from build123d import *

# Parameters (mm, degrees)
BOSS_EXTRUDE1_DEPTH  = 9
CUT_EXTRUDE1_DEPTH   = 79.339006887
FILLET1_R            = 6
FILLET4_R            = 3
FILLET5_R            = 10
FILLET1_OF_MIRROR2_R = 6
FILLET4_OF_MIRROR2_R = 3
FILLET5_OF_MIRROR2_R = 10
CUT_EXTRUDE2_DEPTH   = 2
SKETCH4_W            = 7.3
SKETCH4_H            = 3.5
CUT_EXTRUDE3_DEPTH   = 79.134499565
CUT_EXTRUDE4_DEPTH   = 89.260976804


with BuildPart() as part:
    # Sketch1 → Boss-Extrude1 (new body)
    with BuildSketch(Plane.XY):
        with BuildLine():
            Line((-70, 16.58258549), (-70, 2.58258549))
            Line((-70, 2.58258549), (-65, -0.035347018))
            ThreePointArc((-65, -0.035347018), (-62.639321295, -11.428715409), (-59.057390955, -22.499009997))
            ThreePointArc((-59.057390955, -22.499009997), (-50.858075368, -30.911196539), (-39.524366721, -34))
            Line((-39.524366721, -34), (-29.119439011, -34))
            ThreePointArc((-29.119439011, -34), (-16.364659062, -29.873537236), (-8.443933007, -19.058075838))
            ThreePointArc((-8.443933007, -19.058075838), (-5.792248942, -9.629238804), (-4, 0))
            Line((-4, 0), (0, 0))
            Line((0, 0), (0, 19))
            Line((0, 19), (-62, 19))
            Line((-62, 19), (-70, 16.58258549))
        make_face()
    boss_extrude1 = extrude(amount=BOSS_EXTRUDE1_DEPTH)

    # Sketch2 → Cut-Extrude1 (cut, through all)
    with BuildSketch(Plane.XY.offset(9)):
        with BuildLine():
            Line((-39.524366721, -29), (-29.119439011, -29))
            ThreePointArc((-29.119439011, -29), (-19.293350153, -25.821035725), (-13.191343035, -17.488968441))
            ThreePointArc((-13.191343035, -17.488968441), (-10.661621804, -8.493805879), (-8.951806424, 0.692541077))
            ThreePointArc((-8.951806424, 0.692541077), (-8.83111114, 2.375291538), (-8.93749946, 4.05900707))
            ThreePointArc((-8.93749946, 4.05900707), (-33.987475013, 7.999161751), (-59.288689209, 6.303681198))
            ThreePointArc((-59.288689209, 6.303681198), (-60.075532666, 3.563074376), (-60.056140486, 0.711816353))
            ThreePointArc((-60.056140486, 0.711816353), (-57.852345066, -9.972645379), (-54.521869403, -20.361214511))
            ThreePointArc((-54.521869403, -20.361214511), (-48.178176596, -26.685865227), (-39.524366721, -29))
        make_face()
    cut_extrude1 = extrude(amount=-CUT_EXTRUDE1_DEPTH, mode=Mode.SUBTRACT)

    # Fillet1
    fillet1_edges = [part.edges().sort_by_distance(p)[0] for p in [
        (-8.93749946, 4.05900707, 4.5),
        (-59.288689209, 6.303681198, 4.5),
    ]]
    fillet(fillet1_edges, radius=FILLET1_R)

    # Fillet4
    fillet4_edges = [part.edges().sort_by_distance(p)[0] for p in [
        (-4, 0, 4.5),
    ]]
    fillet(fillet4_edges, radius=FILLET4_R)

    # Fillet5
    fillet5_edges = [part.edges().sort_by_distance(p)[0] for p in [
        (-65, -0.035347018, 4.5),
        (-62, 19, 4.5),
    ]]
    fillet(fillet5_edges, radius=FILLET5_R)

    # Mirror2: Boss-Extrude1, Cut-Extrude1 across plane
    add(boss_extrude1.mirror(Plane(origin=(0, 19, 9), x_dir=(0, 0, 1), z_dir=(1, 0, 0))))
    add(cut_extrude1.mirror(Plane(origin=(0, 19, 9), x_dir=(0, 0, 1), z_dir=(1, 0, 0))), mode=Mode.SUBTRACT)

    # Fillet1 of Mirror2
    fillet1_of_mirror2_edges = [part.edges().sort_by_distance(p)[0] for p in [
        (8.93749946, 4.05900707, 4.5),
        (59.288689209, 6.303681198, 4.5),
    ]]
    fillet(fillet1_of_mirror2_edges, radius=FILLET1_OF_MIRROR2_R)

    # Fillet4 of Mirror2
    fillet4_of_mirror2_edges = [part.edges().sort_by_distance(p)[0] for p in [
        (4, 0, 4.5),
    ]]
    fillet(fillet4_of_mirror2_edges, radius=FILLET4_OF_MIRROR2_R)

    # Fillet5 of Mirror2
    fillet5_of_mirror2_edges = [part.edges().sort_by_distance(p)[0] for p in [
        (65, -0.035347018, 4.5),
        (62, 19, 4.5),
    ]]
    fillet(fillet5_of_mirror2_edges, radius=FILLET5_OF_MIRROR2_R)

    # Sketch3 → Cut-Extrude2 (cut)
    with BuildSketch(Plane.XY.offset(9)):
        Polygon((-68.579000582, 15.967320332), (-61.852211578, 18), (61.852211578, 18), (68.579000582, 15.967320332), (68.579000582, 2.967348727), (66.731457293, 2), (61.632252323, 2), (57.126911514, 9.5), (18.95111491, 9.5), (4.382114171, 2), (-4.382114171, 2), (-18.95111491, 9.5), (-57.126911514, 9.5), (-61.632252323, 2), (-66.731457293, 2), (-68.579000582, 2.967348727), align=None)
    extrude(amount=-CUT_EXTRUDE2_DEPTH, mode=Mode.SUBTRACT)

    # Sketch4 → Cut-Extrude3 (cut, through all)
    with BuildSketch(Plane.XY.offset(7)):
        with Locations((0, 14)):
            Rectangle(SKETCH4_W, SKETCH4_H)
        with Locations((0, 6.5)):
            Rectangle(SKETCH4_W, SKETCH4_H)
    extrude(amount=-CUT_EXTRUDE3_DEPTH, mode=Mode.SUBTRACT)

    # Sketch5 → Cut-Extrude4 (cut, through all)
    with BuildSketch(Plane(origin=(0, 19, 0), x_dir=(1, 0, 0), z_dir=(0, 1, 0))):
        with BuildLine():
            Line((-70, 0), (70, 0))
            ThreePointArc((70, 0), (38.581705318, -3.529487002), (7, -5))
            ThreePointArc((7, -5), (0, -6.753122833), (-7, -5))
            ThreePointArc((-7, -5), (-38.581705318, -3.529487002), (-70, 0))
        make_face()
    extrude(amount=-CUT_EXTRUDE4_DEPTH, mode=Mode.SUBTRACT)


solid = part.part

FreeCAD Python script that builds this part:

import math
import FreeCAD as App
import Part
import Sketcher
Q = App.Units.Quantity


def edges_at(feature, points):
    """Names of the edges that pass closest to the given points."""
    edges = feature.Shape.Edges
    near = lambda p: min(range(len(edges)), key=lambda i: edges[i].distToShape(Part.Vertex(*p))[0])
    return sorted({f"Edge{near(p) + 1}" for p in points})

doc = App.newDocument("Part")
body = doc.addObject("PartDesign::Body", "Body")

# Sketch on XY plane
sketch1 = doc.addObject("Sketcher::SketchObject", "Sketch")
body.addObject(sketch1)
sketch1.AttachmentSupport = (doc.XY_Plane, [""])
sketch1.MapMode = "FlatFace"
sketch1.addGeometry(Part.LineSegment(App.Vector(-70, 16.6, 0), App.Vector(-70, 2.6, 0)), False)
sketch1.addGeometry(Part.LineSegment(App.Vector(-70, 2.6, 0), App.Vector(-65, 0, 0)), False)
sketch1.addGeometry(Part.ArcOfCircle(Part.Circle(App.Vector(41, 16, 0), App.Vector(0, 0, 1), 107.2), math.radians(-171.41), math.radians(-158.96)), False)
sketch1.addGeometry(Part.ArcOfCircle(Part.Circle(App.Vector(-39.5, -11.7, 0), App.Vector(0, 0, 1), 22.3), math.radians(-151), math.radians(-90)), False)
sketch1.addGeometry(Part.LineSegment(App.Vector(-39.5, -34, 0), App.Vector(-29.1, -34, 0)), False)
sketch1.addGeometry(Part.ArcOfCircle(Part.Circle(App.Vector(-29.1, -12.2, 0), App.Vector(0, 0, 1), 21.8), math.radians(-90), math.radians(-18)), False)
sketch1.addGeometry(Part.ArcOfCircle(Part.Circle(App.Vector(-111.7, 15.1, 0), App.Vector(0, 0, 1), 108.7), math.radians(-18.29), math.radians(-7.96)), False)
sketch1.addGeometry(Part.LineSegment(App.Vector(-4, 0, 0), App.Vector(0, 0, 0)), False)
sketch1.addGeometry(Part.LineSegment(App.Vector(0, 0, 0), App.Vector(0, 19, 0)), False)
sketch1.addGeometry(Part.LineSegment(App.Vector(0, 19, 0), App.Vector(-62, 19, 0)), False)
sketch1.addGeometry(Part.LineSegment(App.Vector(-62, 19, 0), App.Vector(-70, 16.6, 0)), False)
sketch1.addConstraint(Sketcher.Constraint("Coincident", 0, 2, 1, 1))
sketch1.addConstraint(Sketcher.Constraint("Coincident", 1, 2, 2, 1))
sketch1.addConstraint(Sketcher.Constraint("Coincident", 2, 2, 3, 1))
sketch1.addConstraint(Sketcher.Constraint("Tangent", 3, 2, 4, 1))
sketch1.addConstraint(Sketcher.Constraint("Tangent", 4, 2, 5, 1))
sketch1.addConstraint(Sketcher.Constraint("Tangent", 5, 2, 6, 1))
sketch1.addConstraint(Sketcher.Constraint("Coincident", 6, 2, 7, 1))
sketch1.addConstraint(Sketcher.Constraint("Coincident", 7, 2, 8, 1))
sketch1.addConstraint(Sketcher.Constraint("Coincident", 8, 2, 9, 1))
sketch1.addConstraint(Sketcher.Constraint("Coincident", 9, 2, 10, 1))
sketch1.addConstraint(Sketcher.Constraint("Coincident", 10, 2, 0, 1))
sketch1.addConstraint(Sketcher.Constraint("Vertical", 0))
sketch1.addConstraint(Sketcher.Constraint("Horizontal", 4))
sketch1.addConstraint(Sketcher.Constraint("Horizontal", 7))
sketch1.addConstraint(Sketcher.Constraint("Vertical", 8))
sketch1.addConstraint(Sketcher.Constraint("Horizontal", 9))
sketch1.addConstraint(Sketcher.Constraint("Coincident", 7, 2, -1, 1))
sketch1.addConstraint(Sketcher.Constraint("DistanceX", 7, 1, 7, 2, Q("4 mm")))
sketch1.addConstraint(Sketcher.Constraint("DistanceX", 9, 2, 9, 1, Q("62 mm")))
sketch1.addConstraint(Sketcher.Constraint("DistanceY", 0, 2, 0, 1, Q("14 mm")))
sketch1.addConstraint(Sketcher.Constraint("DistanceY", 8, 1, 8, 2, Q("19 mm")))
sketch1.addConstraint(Sketcher.Constraint("DistanceX", 0, 2, -1, 1, Q("70 mm")))
sketch1.addConstraint(Sketcher.Constraint("DistanceX", 1, 2, -1, 1, Q("65 mm")))
sketch1.addConstraint(Sketcher.Constraint("DistanceY", 3, 2, -1, 1, Q("34 mm")))
sketch1.addConstraint(Sketcher.Constraint("Radius", 2, Q("107.168259 mm")))
sketch1.addConstraint(Sketcher.Constraint("Radius", 3, Q("22.337721 mm")))
sketch1.addConstraint(Sketcher.Constraint("Radius", 5, Q("21.775564 mm")))
sketch1.addConstraint(Sketcher.Constraint("Radius", 6, Q("108.708693 mm")))
sketch1.addConstraint(Sketcher.Constraint("DistanceX", 4, 1, 4, 2, Q("10.404928 mm")))
sketch1.addConstraint(Sketcher.Constraint("DistanceX", 5, 3, -1, 1, Q("29.119439 mm")))
sketch1.addConstraint(Sketcher.Constraint("DistanceX", 2, 2, -1, 1, Q("59.057391 mm")))
sketch1.addConstraint(Sketcher.Constraint("DistanceX", 3, 3, 2, 3, Q("80.48933 mm")))
sketch1.addConstraint(Sketcher.Constraint("DistanceY", 5, 3, 0, 2, Q("14.807022 mm")))
pad1 = doc.addObject("PartDesign::Pad", "Pad")
body.addObject(pad1)
pad1.Profile = sketch1
pad1.Length = 9

# Sketch on XY plane
sketch2 = doc.addObject("Sketcher::SketchObject", "Sketch001")
body.addObject(sketch2)
sketch2.AttachmentSupport = (doc.XY_Plane, [""])
sketch2.MapMode = "FlatFace"
sketch2.AttachmentOffset = App.Placement(App.Vector(0, 0, 9), App.Rotation())
sketch2.addGeometry(Part.LineSegment(App.Vector(-39.524367, -29, 0), App.Vector(-29.119439, -29, 0)), False)
sketch2.addGeometry(Part.ArcOfCircle(Part.Circle(App.Vector(-29.119439, -12.224436, 0), App.Vector(0, 0, 1), 16.775564), math.radians(-90), math.radians(-18.289682)), False)
sketch2.addGeometry(Part.ArcOfCircle(Part.Circle(App.Vector(-111.660881, 15.057047, 0), App.Vector(0, 0, 1), 103.708693), math.radians(-18.289682), math.radians(-7.961532)), False)
sketch2.addGeometry(Part.ArcOfCircle(Part.Circle(App.Vector(-21.364667, 2.428557, 0), App.Vector(0, 0, 1), 12.533669), math.radians(-7.961532), math.radians(7.474539)), False)
sketch2.addGeometry(Part.ArcOfCircle(Part.Circle(App.Vector(-39.064006, -105.874545, 0), App.Vector(0, 0, 1), 113.986807), math.radians(74.674745), math.radians(100.220102)), False)
sketch2.addGeometry(Part.ArcOfCircle(Part.Circle(App.Vector(-50.178002, 2.204695, 0), App.Vector(0, 0, 1), 9.990311), math.radians(155.776561), math.radians(188.594051)), False)
sketch2.addGeometry(Part.ArcOfCircle(Part.Circle(App.Vector(40.964964, 15.979093, 0), App.Vector(0, 0, 1), 102.168259), math.radians(-171.405949), math.radians(-159.164214)), False)
sketch2.addGeometry(Part.ArcOfCircle(Part.Circle(App.Vector(-39.524367, -11.662279, 0), App.Vector(0, 0, 1), 17.337721), math.radians(-149.88517), math.radians(-90)), False)
sketch2.addConstraint(Sketcher.Constraint("Coincident", 0, 2, 1, 1))
sketch2.addConstraint(Sketcher.Constraint("Coincident", 1, 2, 2, 1))
sketch2.addConstraint(Sketcher.Constraint("Coincident", 2, 2, 3, 1))
sketch2.addConstraint(Sketcher.Constraint("Coincident", 3, 2, 4, 1))
sketch2.addConstraint(Sketcher.Constraint("Coincident", 4, 2, 5, 1))
sketch2.addConstraint(Sketcher.Constraint("Coincident", 5, 2, 6, 1))
sketch2.addConstraint(Sketcher.Constraint("Coincident", 6, 2, 7, 1))
sketch2.addConstraint(Sketcher.Constraint("Coincident", 7, 2, 0, 1))
sketch2.addConstraint(Sketcher.Constraint("Horizontal", 0))
sketch2.addConstraint(Sketcher.Constraint("DistanceY", 0, 2, -1, 1, Q("29 mm")))
sketch2.addConstraint(Sketcher.Constraint("Radius", 3, Q("12.533669 mm")))
sketch2.addConstraint(Sketcher.Constraint("Radius", 5, Q("9.990311 mm")))
sketch2.addConstraint(Sketcher.Constraint("Radius", 6, Q("102.168259 mm")))
sketch2.addConstraint(Sketcher.Constraint("Radius", 7, Q("17.337721 mm")))
sketch2.addConstraint(Sketcher.Constraint("DistanceX", 5, 3, -1, 1, Q("50.178002 mm")))
sketch2.addConstraint(Sketcher.Constraint("Radius", 1, Q("16.775564 mm")))
sketch2.addConstraint(Sketcher.Constraint("Radius", 2, Q("103.708693 mm")))
sketch2.addConstraint(Sketcher.Constraint("Radius", 4, Q("113.986807 mm")))
sketch2.addConstraint(Sketcher.Constraint("DistanceX", 3, 2, -1, 1, Q("8.937499 mm")))
sketch2.addConstraint(Sketcher.Constraint("DistanceX", 7, 3, 3, 3, Q("18.1597 mm")))
sketch2.addConstraint(Sketcher.Constraint("DistanceX", 5, 2, 1, 3, Q("30.936701 mm")))
sketch2.addConstraint(Sketcher.Constraint("DistanceX", 0, 1, 0, 2, Q("10.404928 mm")))
sketch2.addConstraint(Sketcher.Constraint("DistanceX", 1, 3, -1, 1, Q("29.119439 mm")))
sketch2.addConstraint(Sketcher.Constraint("DistanceX", 2, 3, -1, 1, Q("111.660881 mm")))
sketch2.addConstraint(Sketcher.Constraint("DistanceX", 0, 2, -1, 1, Q("29.119439 mm")))
sketch2.addConstraint(Sketcher.Constraint("DistanceY", 1, 2, -1, 1, Q("17.488968 mm")))
sketch2.addConstraint(Sketcher.Constraint("DistanceY", -1, 1, 2, 2, Q("0.692541 mm")))
sketch2.addConstraint(Sketcher.Constraint("DistanceX", 4, 2, -1, 1, Q("59.288689 mm")))
sketch2.addConstraint(Sketcher.Constraint("DistanceY", -1, 1, 4, 2, Q("6.303681 mm")))
sketch2.addConstraint(Sketcher.Constraint("DistanceX", 6, 2, -1, 1, Q("54.521869 mm")))
sketch2.addConstraint(Sketcher.Constraint("DistanceX", 1, 3, 3, 3, Q("7.754772 mm")))
pocket1 = doc.addObject("PartDesign::Pocket", "Pocket")
body.addObject(pocket1)
pocket1.Profile = sketch2
pocket1.Type = "ThroughAll"
doc.recompute()

fillet = doc.addObject("PartDesign::Fillet", "Fillet")
body.addObject(fillet)
fillet.Base = (pocket1, edges_at(pocket1, [(-8.937, 4.059, 4.5), (-59.289, 6.304, 4.5)]))
fillet.Radius = 6
doc.recompute()

fillet2 = doc.addObject("PartDesign::Fillet", "Fillet001")
body.addObject(fillet2)
fillet2.Base = (fillet, edges_at(fillet, [(-4, 0, 4.5)]))
fillet2.Radius = 3
doc.recompute()

fillet3 = doc.addObject("PartDesign::Fillet", "Fillet002")
body.addObject(fillet3)
fillet3.Base = (fillet2, edges_at(fillet2, [(-65, -0.035, 4.5), (-62, 19, 4.5)]))
fillet3.Radius = 10
doc.recompute()

mirrored = doc.addObject("PartDesign::Mirrored", "Mirrored")
body.addObject(mirrored)
mirrored.Originals = [pad1, pocket1]
mirrored.MirrorPlane = (doc.YZ_Plane, [""])
body.Tip = mirrored
doc.recompute()

fillet4 = doc.addObject("PartDesign::Fillet", "Fillet003")
body.addObject(fillet4)
fillet4.Base = (mirrored, edges_at(mirrored, [(8.937, 4.059, 4.5), (59.289, 6.304, 4.5)]))
fillet4.Radius = 6
doc.recompute()

fillet5 = doc.addObject("PartDesign::Fillet", "Fillet004")
body.addObject(fillet5)
fillet5.Base = (fillet4, edges_at(fillet4, [(4, 0, 4.5)]))
fillet5.Radius = 3
doc.recompute()

fillet6 = doc.addObject("PartDesign::Fillet", "Fillet005")
body.addObject(fillet6)
fillet6.Base = (fillet5, edges_at(fillet5, [(65, -0.035, 4.5), (62, 19, 4.5)]))
fillet6.Radius = 10

# Sketch on XY plane
sketch3 = doc.addObject("Sketcher::SketchObject", "Sketch002")
body.addObject(sketch3)
sketch3.AttachmentSupport = (doc.XY_Plane, [""])
sketch3.MapMode = "FlatFace"
sketch3.AttachmentOffset = App.Placement(App.Vector(0, 0, 9), App.Rotation())
sketch3.addGeometry(Part.LineSegment(App.Vector(-61.9, 18, 0), App.Vector(-68.6, 16, 0)), False)
sketch3.addGeometry(Part.LineSegment(App.Vector(-68.6, 16, 0), App.Vector(-68.6, 3, 0)), False)
sketch3.addGeometry(Part.LineSegment(App.Vector(-68.6, 3, 0), App.Vector(-66.7, 2, 0)), False)
sketch3.addGeometry(Part.LineSegment(App.Vector(-66.7, 2, 0), App.Vector(-61.6, 2, 0)), False)
sketch3.addGeometry(Part.LineSegment(App.Vector(-61.6, 2, 0), App.Vector(-57.1, 9.5, 0)), False)
sketch3.addGeometry(Part.LineSegment(App.Vector(-57.1, 9.5, 0), App.Vector(-19, 9.5, 0)), False)
sketch3.addGeometry(Part.LineSegment(App.Vector(-19, 9.5, 0), App.Vector(-4.4, 2, 0)), False)
sketch3.addGeometry(Part.LineSegment(App.Vector(-4.4, 2, 0), App.Vector(4.4, 2, 0)), False)
sketch3.addGeometry(Part.LineSegment(App.Vector(4.4, 2, 0), App.Vector(19, 9.5, 0)), False)
sketch3.addGeometry(Part.LineSegment(App.Vector(19, 9.5, 0), App.Vector(57.1, 9.5, 0)), False)
sketch3.addGeometry(Part.LineSegment(App.Vector(57.1, 9.5, 0), App.Vector(61.6, 2, 0)), False)
sketch3.addGeometry(Part.LineSegment(App.Vector(61.6, 2, 0), App.Vector(66.7, 2, 0)), False)
sketch3.addGeometry(Part.LineSegment(App.Vector(66.7, 2, 0), App.Vector(68.6, 3, 0)), False)
sketch3.addGeometry(Part.LineSegment(App.Vector(68.6, 3, 0), App.Vector(68.6, 16, 0)), False)
sketch3.addGeometry(Part.LineSegment(App.Vector(68.6, 16, 0), App.Vector(61.9, 18, 0)), False)
sketch3.addGeometry(Part.LineSegment(App.Vector(61.9, 18, 0), App.Vector(-61.9, 18, 0)), False)
sketch3.addConstraint(Sketcher.Constraint("Coincident", 0, 2, 1, 1))
sketch3.addConstraint(Sketcher.Constraint("Coincident", 1, 2, 2, 1))
sketch3.addConstraint(Sketcher.Constraint("Coincident", 2, 2, 3, 1))
sketch3.addConstraint(Sketcher.Constraint("Coincident", 3, 2, 4, 1))
sketch3.addConstraint(Sketcher.Constraint("Coincident", 4, 2, 5, 1))
sketch3.addConstraint(Sketcher.Constraint("Coincident", 5, 2, 6, 1))
sketch3.addConstraint(Sketcher.Constraint("Coincident", 6, 2, 7, 1))
sketch3.addConstraint(Sketcher.Constraint("Coincident", 7, 2, 8, 1))
sketch3.addConstraint(Sketcher.Constraint("Coincident", 8, 2, 9, 1))
sketch3.addConstraint(Sketcher.Constraint("Coincident", 9, 2, 10, 1))
sketch3.addConstraint(Sketcher.Constraint("Coincident", 10, 2, 11, 1))
sketch3.addConstraint(Sketcher.Constraint("Coincident", 11, 2, 12, 1))
sketch3.addConstraint(Sketcher.Constraint("Coincident", 12, 2, 13, 1))
sketch3.addConstraint(Sketcher.Constraint("Coincident", 13, 2, 14, 1))
sketch3.addConstraint(Sketcher.Constraint("Coincident", 14, 2, 15, 1))
sketch3.addConstraint(Sketcher.Constraint("Coincident", 15, 2, 0, 1))
sketch3.addConstraint(Sketcher.Constraint("Vertical", 1))
sketch3.addConstraint(Sketcher.Constraint("Horizontal", 3))
sketch3.addConstraint(Sketcher.Constraint("Horizontal", 5))
sketch3.addConstraint(Sketcher.Constraint("Horizontal", 7))
sketch3.addConstraint(Sketcher.Constraint("Horizontal", 9))
sketch3.addConstraint(Sketcher.Constraint("Horizontal", 11))
sketch3.addConstraint(Sketcher.Constraint("Vertical", 13))
sketch3.addConstraint(Sketcher.Constraint("Horizontal", 15))
sketch3.addConstraint(Sketcher.Constraint("Symmetric", 5, 2, 8, 2, -2))
sketch3.addConstraint(Sketcher.Constraint("Symmetric", 3, 2, 10, 2, -2))
sketch3.addConstraint(Sketcher.Constraint("Symmetric", 1, 2, 12, 2, -2))
sketch3.addConstraint(Sketcher.Constraint("Horizontal", 3, 2, 6, 2))
sketch3.addConstraint(Sketcher.Constraint("Horizontal", 0, 2, 13, 2))
sketch3.addConstraint(Sketcher.Constraint("Equal", 5, 9))
sketch3.addConstraint(Sketcher.Constraint("Equal", 3, 11))
sketch3.addConstraint(Sketcher.Constraint("Equal", 6, 8))
sketch3.addConstraint(Sketcher.Constraint("Equal", 0, 14))
sketch3.addConstraint(Sketcher.Constraint("DistanceY", -1, 1, 2, 2, Q("2 mm")))
sketch3.addConstraint(Sketcher.Constraint("DistanceY", -1, 1, 14, 2, Q("18 mm")))
sketch3.addConstraint(Sketcher.Constraint("DistanceY", -1, 1, 4, 2, Q("9.5 mm")))
sketch3.addConstraint(Sketcher.Constraint("DistanceX", 0, 2, -1, 1, Q("68.579001 mm")))
sketch3.addConstraint(Sketcher.Constraint("DistanceX", 5, 2, 6, 2, Q("14.569001 mm")))
sketch3.addConstraint(Sketcher.Constraint("DistanceX", 7, 1, 7, 2, Q("8.764228 mm")))
sketch3.addConstraint(Sketcher.Constraint("DistanceY", 1, 2, 1, 1, Q("12.999972 mm")))
sketch3.addConstraint(Sketcher.Constraint("DistanceX", 9, 2, 14, 2, Q("4.7253 mm")))
sketch3.addConstraint(Sketcher.Constraint("Distance", 2, Q("2.085469 mm")))
sketch3.addConstraint(Sketcher.Constraint("DistanceX", 3, 1, 3, 2, Q("5.099205 mm")))
sketch3.addConstraint(Sketcher.Constraint("DistanceX", 5, 1, 5, 2, Q("38.175797 mm")))
sketch3.addConstraint(Sketcher.Constraint("DistanceY", -1, 1, 0, 2, Q("15.96732 mm")))
pocket2 = doc.addObject("PartDesign::Pocket", "Pocket001")
body.addObject(pocket2)
pocket2.Profile = sketch3
pocket2.Length = 2

# Sketch on XY plane
sketch4 = doc.addObject("Sketcher::SketchObject", "Sketch003")
body.addObject(sketch4)
sketch4.AttachmentSupport = (doc.XY_Plane, [""])
sketch4.MapMode = "FlatFace"
sketch4.AttachmentOffset = App.Placement(App.Vector(0, 0, 7), App.Rotation())
sketch4.addGeometry(Part.LineSegment(App.Vector(-3.6, 15.8, 0), App.Vector(-3.6, 12.2, 0)), False)
sketch4.addGeometry(Part.LineSegment(App.Vector(-3.6, 12.2, 0), App.Vector(3.6, 12.2, 0)), False)
sketch4.addGeometry(Part.LineSegment(App.Vector(3.6, 12.2, 0), App.Vector(3.6, 15.8, 0)), False)
sketch4.addGeometry(Part.LineSegment(App.Vector(3.6, 15.8, 0), App.Vector(-3.6, 15.8, 0)), False)
sketch4.addGeometry(Part.LineSegment(App.Vector(-3.6, 8.2, 0), App.Vector(-3.6, 4.8, 0)), False)
sketch4.addGeometry(Part.LineSegment(App.Vector(-3.6, 4.8, 0), App.Vector(3.6, 4.8, 0)), False)
sketch4.addGeometry(Part.LineSegment(App.Vector(3.6, 4.8, 0), App.Vector(3.6, 8.2, 0)), False)
sketch4.addGeometry(Part.LineSegment(App.Vector(3.6, 8.2, 0), App.Vector(-3.6, 8.2, 0)), False)
sketch4.addConstraint(Sketcher.Constraint("Coincident", 0, 2, 1, 1))
sketch4.addConstraint(Sketcher.Constraint("Coincident", 1, 2, 2, 1))
sketch4.addConstraint(Sketcher.Constraint("Coincident", 2, 2, 3, 1))
sketch4.addConstraint(Sketcher.Constraint("Coincident", 3, 2, 0, 1))
sketch4.addConstraint(Sketcher.Constraint("Coincident", 4, 2, 5, 1))
sketch4.addConstraint(Sketcher.Constraint("Coincident", 5, 2, 6, 1))
sketch4.addConstraint(Sketcher.Constraint("Coincident", 6, 2, 7, 1))
sketch4.addConstraint(Sketcher.Constraint("Coincident", 7, 2, 4, 1))
sketch4.addConstraint(Sketcher.Constraint("Vertical", 0))
sketch4.addConstraint(Sketcher.Constraint("Horizontal", 1))
sketch4.addConstraint(Sketcher.Constraint("Vertical", 2))
sketch4.addConstraint(Sketcher.Constraint("Horizontal", 3))
sketch4.addConstraint(Sketcher.Constraint("Vertical", 4))
sketch4.addConstraint(Sketcher.Constraint("Horizontal", 5))
sketch4.addConstraint(Sketcher.Constraint("Vertical", 6))
sketch4.addConstraint(Sketcher.Constraint("Horizontal", 7))
sketch4.addConstraint(Sketcher.Constraint("Vertical", 3, 2, 4, 2))
sketch4.addConstraint(Sketcher.Constraint("Vertical", 2, 2, 5, 2))
sketch4.addConstraint(Sketcher.Constraint("Equal", 2, 4))
sketch4.addConstraint(Sketcher.Constraint("DistanceX", 1, 1, 1, 2, Q("7.3 mm")))
sketch4.addConstraint(Sketcher.Constraint("DistanceY", 0, 2, 0, 1, Q("3.5 mm")))
sketch4.addConstraint(Sketcher.Constraint("DistanceY", 4, 2, 3, 2, Q("11 mm")))
sketch4.addConstraint(Sketcher.Constraint("DistanceX", 0, 2, -1, 1, Q("3.65 mm")))
sketch4.addConstraint(Sketcher.Constraint("DistanceY", -1, 1, 0, 2, Q("12.25 mm")))
pocket3 = doc.addObject("PartDesign::Pocket", "Pocket002")
body.addObject(pocket3)
pocket3.Profile = sketch4
pocket3.Type = "ThroughAll"

# Sketch on XZ plane
sketch5 = doc.addObject("Sketcher::SketchObject", "Sketch004")
body.addObject(sketch5)
sketch5.AttachmentSupport = (doc.XZ_Plane, [""])
sketch5.MapMode = "FlatFace"
sketch5.AttachmentOffset = App.Placement(App.Vector(0, 0, -19), App.Rotation())
sketch5.addGeometry(Part.LineSegment(App.Vector(70, 0, 0), App.Vector(-70, 0, 0)), False)
sketch5.addGeometry(Part.ArcOfCircle(Part.Circle(App.Vector(0, -479, 0), App.Vector(0, 0, 1), 484), math.radians(90.79), math.radians(98.28)), False)
sketch5.addGeometry(Part.ArcOfCircle(Part.Circle(App.Vector(0, -8, 0), App.Vector(0, 0, 1), 15), math.radians(62), math.radians(118)), False)
sketch5.addGeometry(Part.ArcOfCircle(Part.Circle(App.Vector(0, -479, 0), App.Vector(0, 0, 1), 484), math.radians(81.72), math.radians(89.21)), False)
sketch5.addConstraint(Sketcher.Constraint("Coincident", 0, 2, 1, 2))
sketch5.addConstraint(Sketcher.Constraint("Coincident", 1, 1, 2, 2))
sketch5.addConstraint(Sketcher.Constraint("Coincident", 2, 1, 3, 2))
sketch5.addConstraint(Sketcher.Constraint("Coincident", 3, 1, 0, 1))
sketch5.addConstraint(Sketcher.Constraint("Horizontal", 0))
sketch5.addConstraint(Sketcher.Constraint("Equal", 1, 3))
sketch5.addConstraint(Sketcher.Constraint("Symmetric", 0, 2, 3, 1, -1, 1))
sketch5.addConstraint(Sketcher.Constraint("Symmetric", 1, 1, 2, 1, -2))
sketch5.addConstraint(Sketcher.Constraint("DistanceX", 0, 2, 0, 1, Q("140 mm")))
sketch5.addConstraint(Sketcher.Constraint("DistanceX", 1, 1, -1, 1, Q("7 mm")))
sketch5.addConstraint(Sketcher.Constraint("DistanceY", -1, 1, 1, 1, Q("5 mm")))
sketch5.addConstraint(Sketcher.Constraint("Radius", 1, Q("483.946504 mm")))
sketch5.addConstraint(Sketcher.Constraint("Radius", 2, Q("14.851623 mm")))
pocket4 = doc.addObject("PartDesign::Pocket", "Pocket003")
body.addObject(pocket4)
pocket4.Profile = sketch5
pocket4.Type = "ThroughAll"
pocket4.Reversed = True

doc.recompute()
